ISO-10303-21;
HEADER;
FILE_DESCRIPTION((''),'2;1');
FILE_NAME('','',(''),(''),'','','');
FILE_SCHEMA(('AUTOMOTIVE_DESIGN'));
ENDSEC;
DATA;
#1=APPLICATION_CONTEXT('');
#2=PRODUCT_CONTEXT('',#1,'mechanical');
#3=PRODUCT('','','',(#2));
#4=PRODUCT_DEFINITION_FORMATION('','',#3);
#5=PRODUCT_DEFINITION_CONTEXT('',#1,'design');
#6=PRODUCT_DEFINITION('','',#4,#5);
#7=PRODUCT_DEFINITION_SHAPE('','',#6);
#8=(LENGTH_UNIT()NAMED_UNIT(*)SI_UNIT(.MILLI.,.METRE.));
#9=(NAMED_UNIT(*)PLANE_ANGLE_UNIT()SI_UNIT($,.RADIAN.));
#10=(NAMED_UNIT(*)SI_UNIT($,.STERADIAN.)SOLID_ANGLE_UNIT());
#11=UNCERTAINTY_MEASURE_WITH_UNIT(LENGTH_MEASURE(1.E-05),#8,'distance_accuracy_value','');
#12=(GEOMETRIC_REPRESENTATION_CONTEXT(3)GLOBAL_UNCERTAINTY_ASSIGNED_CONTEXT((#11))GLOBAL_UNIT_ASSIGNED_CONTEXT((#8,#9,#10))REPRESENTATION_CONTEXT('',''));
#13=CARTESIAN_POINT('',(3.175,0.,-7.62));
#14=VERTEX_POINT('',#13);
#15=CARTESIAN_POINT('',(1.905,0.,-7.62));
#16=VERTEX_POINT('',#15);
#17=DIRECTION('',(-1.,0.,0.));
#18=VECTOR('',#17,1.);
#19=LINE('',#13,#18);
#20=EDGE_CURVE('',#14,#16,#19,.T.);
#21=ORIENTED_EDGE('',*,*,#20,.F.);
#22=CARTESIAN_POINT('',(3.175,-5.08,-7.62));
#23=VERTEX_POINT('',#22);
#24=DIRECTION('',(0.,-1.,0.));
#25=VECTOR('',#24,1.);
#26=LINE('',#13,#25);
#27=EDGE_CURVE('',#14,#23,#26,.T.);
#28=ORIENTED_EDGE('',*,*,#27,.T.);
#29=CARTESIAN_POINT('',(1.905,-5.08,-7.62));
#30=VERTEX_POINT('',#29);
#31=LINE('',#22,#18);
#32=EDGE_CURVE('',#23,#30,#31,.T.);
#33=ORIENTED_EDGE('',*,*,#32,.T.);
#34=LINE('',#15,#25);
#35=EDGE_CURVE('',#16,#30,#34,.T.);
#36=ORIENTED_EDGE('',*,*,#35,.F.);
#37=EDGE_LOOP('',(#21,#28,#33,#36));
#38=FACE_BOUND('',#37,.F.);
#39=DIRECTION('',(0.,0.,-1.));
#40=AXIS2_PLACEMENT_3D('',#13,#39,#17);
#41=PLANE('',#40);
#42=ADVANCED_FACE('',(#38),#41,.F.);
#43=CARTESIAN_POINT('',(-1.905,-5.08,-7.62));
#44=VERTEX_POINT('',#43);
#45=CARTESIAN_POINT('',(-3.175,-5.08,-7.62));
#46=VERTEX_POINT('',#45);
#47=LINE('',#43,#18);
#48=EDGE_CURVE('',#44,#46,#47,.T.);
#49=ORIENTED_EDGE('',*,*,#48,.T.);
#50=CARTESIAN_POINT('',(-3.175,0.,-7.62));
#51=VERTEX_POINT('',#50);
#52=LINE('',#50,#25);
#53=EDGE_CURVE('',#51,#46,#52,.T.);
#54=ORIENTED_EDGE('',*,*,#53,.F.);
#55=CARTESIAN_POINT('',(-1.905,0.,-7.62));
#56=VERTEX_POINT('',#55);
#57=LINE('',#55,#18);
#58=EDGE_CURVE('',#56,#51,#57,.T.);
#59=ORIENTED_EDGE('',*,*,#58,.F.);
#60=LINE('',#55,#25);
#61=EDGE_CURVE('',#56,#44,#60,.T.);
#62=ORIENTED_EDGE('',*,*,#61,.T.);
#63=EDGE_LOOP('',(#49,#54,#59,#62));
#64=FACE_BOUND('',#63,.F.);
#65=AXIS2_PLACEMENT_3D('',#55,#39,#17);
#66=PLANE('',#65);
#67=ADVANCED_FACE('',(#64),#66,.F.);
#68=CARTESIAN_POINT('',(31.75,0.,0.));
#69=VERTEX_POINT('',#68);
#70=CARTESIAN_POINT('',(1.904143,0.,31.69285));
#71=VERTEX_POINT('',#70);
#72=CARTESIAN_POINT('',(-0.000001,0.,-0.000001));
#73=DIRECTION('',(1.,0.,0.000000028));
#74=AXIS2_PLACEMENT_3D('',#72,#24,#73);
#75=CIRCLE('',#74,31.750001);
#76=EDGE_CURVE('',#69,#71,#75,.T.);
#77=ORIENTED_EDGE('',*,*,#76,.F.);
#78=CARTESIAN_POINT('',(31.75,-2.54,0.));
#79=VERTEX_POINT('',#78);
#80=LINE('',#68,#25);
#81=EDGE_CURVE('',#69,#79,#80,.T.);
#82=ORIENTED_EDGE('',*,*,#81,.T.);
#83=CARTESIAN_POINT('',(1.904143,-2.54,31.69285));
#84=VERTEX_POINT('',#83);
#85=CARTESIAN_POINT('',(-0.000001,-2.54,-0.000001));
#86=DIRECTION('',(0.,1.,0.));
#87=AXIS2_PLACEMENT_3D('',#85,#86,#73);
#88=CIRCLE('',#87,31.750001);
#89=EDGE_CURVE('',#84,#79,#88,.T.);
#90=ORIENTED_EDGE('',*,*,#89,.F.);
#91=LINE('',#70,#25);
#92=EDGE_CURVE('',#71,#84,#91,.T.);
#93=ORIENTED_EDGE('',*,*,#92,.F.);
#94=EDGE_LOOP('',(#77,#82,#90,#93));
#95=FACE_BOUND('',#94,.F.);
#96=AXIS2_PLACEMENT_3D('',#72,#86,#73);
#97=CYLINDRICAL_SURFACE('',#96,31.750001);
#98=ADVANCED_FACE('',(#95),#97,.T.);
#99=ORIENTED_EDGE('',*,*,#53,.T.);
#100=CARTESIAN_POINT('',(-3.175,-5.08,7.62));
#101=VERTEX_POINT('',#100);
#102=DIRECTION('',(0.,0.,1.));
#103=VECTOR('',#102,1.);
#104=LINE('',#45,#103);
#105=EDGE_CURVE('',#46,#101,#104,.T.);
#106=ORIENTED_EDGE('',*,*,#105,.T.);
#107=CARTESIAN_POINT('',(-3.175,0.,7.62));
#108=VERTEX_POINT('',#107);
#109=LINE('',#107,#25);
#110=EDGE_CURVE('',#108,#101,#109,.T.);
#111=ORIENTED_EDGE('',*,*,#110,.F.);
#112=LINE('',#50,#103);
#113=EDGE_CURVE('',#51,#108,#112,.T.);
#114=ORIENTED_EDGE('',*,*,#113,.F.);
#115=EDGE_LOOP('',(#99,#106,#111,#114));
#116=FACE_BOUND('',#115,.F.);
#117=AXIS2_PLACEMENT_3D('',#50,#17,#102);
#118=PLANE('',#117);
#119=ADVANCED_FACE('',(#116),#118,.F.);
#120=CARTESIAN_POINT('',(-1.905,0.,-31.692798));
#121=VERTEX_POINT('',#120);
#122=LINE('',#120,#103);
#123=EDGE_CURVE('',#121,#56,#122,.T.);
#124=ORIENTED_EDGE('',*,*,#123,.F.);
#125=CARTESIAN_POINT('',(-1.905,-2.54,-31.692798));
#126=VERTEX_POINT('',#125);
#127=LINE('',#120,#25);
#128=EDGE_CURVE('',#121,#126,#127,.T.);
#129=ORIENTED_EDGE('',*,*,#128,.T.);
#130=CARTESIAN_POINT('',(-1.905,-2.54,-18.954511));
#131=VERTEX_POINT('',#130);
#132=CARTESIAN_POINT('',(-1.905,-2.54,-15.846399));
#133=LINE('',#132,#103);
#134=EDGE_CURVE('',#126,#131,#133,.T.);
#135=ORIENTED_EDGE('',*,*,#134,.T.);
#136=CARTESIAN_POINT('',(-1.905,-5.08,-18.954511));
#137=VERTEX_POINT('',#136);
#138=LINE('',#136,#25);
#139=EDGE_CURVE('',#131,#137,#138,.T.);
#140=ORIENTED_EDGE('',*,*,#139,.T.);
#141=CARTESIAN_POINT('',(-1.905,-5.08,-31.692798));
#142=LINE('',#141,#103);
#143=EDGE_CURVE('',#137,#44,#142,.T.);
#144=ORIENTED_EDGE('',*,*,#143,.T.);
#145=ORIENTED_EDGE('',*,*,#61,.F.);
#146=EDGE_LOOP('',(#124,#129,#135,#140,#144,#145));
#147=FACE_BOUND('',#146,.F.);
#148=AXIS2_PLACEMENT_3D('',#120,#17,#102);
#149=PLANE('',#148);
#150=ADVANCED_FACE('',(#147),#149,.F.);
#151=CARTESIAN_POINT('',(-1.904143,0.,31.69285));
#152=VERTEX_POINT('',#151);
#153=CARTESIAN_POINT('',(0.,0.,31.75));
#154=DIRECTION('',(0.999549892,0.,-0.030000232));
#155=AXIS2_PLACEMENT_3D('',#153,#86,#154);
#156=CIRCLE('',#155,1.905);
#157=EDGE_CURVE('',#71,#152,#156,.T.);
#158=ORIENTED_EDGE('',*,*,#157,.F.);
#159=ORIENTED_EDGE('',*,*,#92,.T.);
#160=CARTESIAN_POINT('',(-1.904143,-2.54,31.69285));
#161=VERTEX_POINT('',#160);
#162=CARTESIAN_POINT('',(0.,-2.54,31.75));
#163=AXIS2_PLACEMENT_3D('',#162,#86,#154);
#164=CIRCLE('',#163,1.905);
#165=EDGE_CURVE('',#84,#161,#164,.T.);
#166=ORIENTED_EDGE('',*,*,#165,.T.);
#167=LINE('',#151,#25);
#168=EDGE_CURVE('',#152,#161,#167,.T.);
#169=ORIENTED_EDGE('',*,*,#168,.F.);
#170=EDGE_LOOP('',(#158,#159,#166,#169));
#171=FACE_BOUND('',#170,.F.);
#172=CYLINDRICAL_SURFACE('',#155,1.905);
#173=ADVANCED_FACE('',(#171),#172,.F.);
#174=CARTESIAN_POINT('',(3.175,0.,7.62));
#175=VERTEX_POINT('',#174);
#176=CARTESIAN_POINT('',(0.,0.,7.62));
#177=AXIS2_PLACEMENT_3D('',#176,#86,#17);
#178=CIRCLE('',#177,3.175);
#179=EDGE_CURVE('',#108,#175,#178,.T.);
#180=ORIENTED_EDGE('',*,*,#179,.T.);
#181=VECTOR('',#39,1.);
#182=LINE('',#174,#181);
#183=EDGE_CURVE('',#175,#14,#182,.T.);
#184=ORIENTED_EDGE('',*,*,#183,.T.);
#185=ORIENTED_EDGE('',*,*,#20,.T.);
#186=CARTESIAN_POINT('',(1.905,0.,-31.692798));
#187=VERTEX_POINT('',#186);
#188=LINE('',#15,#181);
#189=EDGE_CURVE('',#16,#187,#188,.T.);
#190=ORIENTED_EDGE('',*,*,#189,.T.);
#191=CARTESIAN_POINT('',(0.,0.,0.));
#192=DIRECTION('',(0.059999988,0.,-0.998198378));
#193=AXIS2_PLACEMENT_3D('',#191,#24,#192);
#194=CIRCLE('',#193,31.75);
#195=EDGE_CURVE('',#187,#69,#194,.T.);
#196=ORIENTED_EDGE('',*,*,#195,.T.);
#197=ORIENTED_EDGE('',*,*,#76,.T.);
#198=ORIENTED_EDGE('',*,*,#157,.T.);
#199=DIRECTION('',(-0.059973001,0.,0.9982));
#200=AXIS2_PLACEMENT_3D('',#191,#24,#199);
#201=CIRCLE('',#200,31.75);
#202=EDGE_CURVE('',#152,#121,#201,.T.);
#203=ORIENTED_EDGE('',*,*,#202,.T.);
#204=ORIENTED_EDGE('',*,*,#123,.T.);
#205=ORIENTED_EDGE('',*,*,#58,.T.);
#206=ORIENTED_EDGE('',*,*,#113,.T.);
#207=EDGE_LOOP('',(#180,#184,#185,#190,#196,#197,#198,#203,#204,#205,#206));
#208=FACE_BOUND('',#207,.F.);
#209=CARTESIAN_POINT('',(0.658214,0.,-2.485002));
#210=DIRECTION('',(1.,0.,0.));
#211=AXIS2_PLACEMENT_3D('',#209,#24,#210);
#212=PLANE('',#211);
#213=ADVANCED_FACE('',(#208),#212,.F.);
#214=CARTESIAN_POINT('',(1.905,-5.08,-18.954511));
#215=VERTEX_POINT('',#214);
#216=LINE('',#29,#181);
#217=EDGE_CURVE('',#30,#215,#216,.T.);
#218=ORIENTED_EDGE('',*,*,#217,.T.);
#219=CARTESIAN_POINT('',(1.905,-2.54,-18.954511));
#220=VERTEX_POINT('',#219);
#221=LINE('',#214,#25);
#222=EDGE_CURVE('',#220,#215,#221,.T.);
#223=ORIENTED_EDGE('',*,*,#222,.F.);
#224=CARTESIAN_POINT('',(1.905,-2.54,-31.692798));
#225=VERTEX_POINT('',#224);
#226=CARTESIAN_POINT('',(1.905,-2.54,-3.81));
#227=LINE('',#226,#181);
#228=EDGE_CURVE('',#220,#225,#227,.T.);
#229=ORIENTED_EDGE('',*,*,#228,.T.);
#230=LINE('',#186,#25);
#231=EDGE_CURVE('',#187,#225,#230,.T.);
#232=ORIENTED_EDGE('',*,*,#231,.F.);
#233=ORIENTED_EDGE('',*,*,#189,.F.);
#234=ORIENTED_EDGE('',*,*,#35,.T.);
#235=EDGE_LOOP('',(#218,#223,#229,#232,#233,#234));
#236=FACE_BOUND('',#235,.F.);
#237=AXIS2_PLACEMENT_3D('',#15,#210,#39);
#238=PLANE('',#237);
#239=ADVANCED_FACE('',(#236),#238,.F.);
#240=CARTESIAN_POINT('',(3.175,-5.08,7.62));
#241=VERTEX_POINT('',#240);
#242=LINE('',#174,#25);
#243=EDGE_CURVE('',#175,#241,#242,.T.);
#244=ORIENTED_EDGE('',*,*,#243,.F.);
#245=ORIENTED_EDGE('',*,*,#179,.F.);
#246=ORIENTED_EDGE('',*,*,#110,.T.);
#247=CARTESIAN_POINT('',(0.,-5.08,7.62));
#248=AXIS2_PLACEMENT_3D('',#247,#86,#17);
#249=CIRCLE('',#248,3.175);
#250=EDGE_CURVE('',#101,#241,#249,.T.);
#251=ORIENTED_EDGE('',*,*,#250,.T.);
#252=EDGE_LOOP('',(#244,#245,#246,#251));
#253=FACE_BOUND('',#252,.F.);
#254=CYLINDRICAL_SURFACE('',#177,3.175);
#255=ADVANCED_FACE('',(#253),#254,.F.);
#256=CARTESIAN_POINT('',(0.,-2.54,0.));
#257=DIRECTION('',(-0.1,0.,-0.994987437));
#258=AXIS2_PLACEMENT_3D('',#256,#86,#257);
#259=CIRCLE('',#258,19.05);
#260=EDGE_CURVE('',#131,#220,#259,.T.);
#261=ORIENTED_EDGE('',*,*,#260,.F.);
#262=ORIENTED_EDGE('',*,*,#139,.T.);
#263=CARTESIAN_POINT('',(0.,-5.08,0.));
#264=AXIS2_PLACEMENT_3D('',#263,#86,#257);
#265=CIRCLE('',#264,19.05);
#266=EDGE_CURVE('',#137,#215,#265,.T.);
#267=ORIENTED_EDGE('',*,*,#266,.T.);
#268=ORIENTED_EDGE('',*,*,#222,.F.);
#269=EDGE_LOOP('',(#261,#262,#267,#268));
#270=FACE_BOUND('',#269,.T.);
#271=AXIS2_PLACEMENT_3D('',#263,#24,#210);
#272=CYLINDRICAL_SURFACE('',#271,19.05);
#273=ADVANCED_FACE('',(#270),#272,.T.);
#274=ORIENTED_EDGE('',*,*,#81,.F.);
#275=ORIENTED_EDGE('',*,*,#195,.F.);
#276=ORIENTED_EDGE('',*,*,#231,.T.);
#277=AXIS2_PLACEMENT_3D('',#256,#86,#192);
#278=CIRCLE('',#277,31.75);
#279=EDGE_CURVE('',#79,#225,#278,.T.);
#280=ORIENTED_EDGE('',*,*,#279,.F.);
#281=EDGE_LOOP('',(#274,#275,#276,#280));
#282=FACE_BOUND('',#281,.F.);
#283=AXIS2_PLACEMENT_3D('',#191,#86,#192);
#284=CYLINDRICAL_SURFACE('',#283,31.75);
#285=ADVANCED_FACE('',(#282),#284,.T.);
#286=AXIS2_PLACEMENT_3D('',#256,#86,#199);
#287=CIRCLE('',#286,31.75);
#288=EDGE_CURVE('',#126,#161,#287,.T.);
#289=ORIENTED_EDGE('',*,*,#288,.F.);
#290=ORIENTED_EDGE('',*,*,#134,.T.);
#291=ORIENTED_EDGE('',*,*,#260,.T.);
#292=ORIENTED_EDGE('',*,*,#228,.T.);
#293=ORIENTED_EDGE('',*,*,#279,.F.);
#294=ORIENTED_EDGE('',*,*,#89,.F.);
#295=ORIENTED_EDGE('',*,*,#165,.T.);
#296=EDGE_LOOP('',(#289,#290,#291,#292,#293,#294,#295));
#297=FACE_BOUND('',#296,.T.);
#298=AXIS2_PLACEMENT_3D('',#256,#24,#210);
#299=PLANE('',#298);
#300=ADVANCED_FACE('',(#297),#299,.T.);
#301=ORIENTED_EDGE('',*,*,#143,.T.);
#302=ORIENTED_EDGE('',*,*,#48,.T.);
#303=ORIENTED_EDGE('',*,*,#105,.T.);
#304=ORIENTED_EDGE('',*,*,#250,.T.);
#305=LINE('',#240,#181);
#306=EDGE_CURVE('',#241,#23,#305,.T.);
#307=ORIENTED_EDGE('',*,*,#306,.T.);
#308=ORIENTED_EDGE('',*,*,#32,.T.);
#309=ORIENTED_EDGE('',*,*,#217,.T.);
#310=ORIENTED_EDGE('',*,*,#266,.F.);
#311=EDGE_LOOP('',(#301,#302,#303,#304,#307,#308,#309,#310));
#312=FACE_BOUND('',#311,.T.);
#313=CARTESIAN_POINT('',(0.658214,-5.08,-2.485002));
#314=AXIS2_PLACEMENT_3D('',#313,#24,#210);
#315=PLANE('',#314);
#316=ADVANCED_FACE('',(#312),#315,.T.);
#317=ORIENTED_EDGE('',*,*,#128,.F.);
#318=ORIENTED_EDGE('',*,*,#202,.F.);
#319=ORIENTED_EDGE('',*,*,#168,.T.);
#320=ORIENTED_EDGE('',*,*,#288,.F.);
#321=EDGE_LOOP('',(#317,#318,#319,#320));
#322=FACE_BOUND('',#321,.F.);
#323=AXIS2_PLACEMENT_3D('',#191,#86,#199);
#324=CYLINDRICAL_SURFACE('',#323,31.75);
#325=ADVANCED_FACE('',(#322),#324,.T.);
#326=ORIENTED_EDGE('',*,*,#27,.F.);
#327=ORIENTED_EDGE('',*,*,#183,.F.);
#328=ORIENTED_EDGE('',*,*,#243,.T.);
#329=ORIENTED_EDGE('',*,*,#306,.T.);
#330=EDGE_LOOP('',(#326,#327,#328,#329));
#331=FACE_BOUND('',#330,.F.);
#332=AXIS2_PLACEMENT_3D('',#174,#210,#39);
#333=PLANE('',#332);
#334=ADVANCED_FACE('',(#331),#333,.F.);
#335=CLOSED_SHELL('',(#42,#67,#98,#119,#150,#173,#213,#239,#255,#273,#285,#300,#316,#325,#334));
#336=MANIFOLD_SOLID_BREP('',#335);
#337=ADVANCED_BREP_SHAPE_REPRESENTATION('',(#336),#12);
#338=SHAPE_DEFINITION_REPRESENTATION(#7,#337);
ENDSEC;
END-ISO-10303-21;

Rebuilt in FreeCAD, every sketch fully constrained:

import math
import FreeCAD as App
import Part
import Sketcher
from FreeCAD import Vector
Q = App.Units.Quantity

doc = App.newDocument("Part")
params = doc.addObject("Spreadsheet::Sheet", "Params")
for row, (alias, value) in enumerate([
    ("sketch1_radius", "1.25 in"),
    ("sketch1_height", "0.6 in"),
    ("sketch1_radius2", "0.075 in"),
    ("sketch1_radius3", "0.125 in"),
    ("sketch1_width", "0.05 in"),
    ("pad1_length", "0.2 in"),
    ("sketch2_diameter", "6 in"),
    ("sketch2_diameter2", "1.5 in"),
    ("pocket1_length", "0.1 in"),
], start=1):
    params.set(f"A{row}", alias)
    params.set(f"B{row}", "=" + value)
    params.setAlias(f"B{row}", alias)

body = doc.addObject("PartDesign::Body", "Body")

# Sketch on XZ plane
sketch1 = body.newObject("Sketcher::SketchObject", "Sketch")
sketch1.AttachmentSupport = (doc.getObject("XZ_Plane"), [""])
sketch1.MapMode = "FlatFace"
sketch1.addGeometry([
    Part.ArcOfCircle(Part.Circle(Vector(0, 0, 0), Vector(0, 0, 1), 31.7), math.radians(-87), math.radians(0)),  # 0
    Part.ArcOfCircle(Part.Circle(Vector(0, 0, 0), Vector(0, 0, 1), 31.8), math.radians(0), math.radians(87)),  # 1
    Part.ArcOfCircle(Part.Circle(Vector(0, 31.8, 0), Vector(0, 0, 1), 1.9), math.radians(-178), math.radians(-2)),  # 2
    Part.ArcOfCircle(Part.Circle(Vector(0, 0, 0), Vector(0, 0, 1), 31.7), math.radians(93), math.radians(267)),  # 3
    Part.LineSegment(Vector(-1.9, -31.7, 0), Vector(-1.9, -7.6, 0)),  # 4
    Part.LineSegment(Vector(-1.9, -7.6, 0), Vector(-3.2, -7.6, 0)),  # 5
    Part.LineSegment(Vector(-3.2, -7.6, 0), Vector(-3.2, 7.6, 0)),  # 6
    Part.ArcOfCircle(Part.Circle(Vector(0, 7.6, 0), Vector(0, 0, 1), 3.2), math.radians(0), math.radians(180)),  # 7
    Part.LineSegment(Vector(3.2, 7.6, 0), Vector(3.2, -7.6, 0)),  # 8
    Part.LineSegment(Vector(3.2, -7.6, 0), Vector(1.9, -7.6, 0)),  # 9
    Part.LineSegment(Vector(1.9, -7.6, 0), Vector(1.9, -31.7, 0)),  # 10
], False)
sketch1.addConstraint([
    Sketcher.Constraint("Tangent", 0, 2, 1, 1),
    Sketcher.Constraint("Coincident", 1, 2, 2, 2),
    Sketcher.Constraint("Coincident", 2, 1, 3, 1),
    Sketcher.Constraint("Coincident", 3, 2, 4, 1),
    Sketcher.Constraint("Coincident", 4, 2, 5, 1),
    Sketcher.Constraint("Coincident", 5, 2, 6, 1),
    Sketcher.Constraint("Tangent", 6, 2, 7, 2),
    Sketcher.Constraint("Tangent", 7, 1, 8, 1),
    Sketcher.Constraint("Coincident", 8, 2, 9, 1),
    Sketcher.Constraint("Coincident", 9, 2, 10, 1),
    Sketcher.Constraint("Coincident", 10, 2, 0, 1),
    Sketcher.Constraint("Vertical", 4),
    Sketcher.Constraint("Horizontal", 5),
    Sketcher.Constraint("Vertical", 6),
    Sketcher.Constraint("Vertical", 8),
    Sketcher.Constraint("Horizontal", 9),
    Sketcher.Constraint("Vertical", 10),
    Sketcher.Constraint("Coincident", 0, 3, -1, 1),
    Sketcher.Constraint("Coincident", 3, 3, -1, 1),
    Sketcher.Constraint("Equal", 0, 1),
    Sketcher.Constraint("Equal", 1, 3),
    Sketcher.Constraint("Symmetric", 5, 2, 7, 1, -1, 1),
    Sketcher.Constraint("Symmetric", 4, 2, 9, 2, -2),
    Sketcher.Constraint("PointOnObject", 2, 3, -2),
    Sketcher.Constraint("PointOnObject", 0, 2, -1),
    Sketcher.Constraint("Radius", 0, Q("1.25 in")),
    Sketcher.Constraint("DistanceY", 6, 1, 6, 2, Q("0.6 in")),
    Sketcher.Constraint("Radius", 2, Q("0.075 in")),
    Sketcher.Constraint("Radius", 7, Q("0.125 in")),
    Sketcher.Constraint("DistanceX", 5, 2, 5, 1, Q("0.05 in")),
    Sketcher.Constraint("DistanceY", -1, 1, 2, 3, Q("1.25 in")),
])
sketch1.setExpression("Constraints[25]", "Params.sketch1_radius")
sketch1.setExpression("Constraints[26]", "Params.sketch1_height")
sketch1.setExpression("Constraints[27]", "Params.sketch1_radius2")
sketch1.setExpression("Constraints[28]", "Params.sketch1_radius3")
sketch1.setExpression("Constraints[29]", "Params.sketch1_width")
pad1 = body.newObject("PartDesign::Pad", "Pad")
pad1.Profile = sketch1
pad1.setExpression("Length", "Params.pad1_length")

# Sketch on XZ plane
sketch2 = body.newObject("Sketcher::SketchObject", "Sketch001")
sketch2.AttachmentSupport = (doc.getObject("XZ_Plane"), [""])
sketch2.MapMode = "FlatFace"
sketch2.AttachmentOffset = App.Placement(Vector(0, 0, 0.2 * 25.4), App.Rotation())
sketch2.addGeometry([
    Part.Circle(Vector(0, 0, 0), Vector(0, 0, 1), 76),
    Part.Circle(Vector(0, 0, 0), Vector(0, 0, 1), 19),
], False)
sketch2.addConstraint([
    Sketcher.Constraint("Coincident", 0, 3, -1, 1),
    Sketcher.Constraint("Coincident", 1, 3, -1, 1),
    Sketcher.Constraint("Diameter", 0, Q("6 in")),
    Sketcher.Constraint("Diameter", 1, Q("1.5 in")),
])
sketch2.setExpression("Constraints[2]", "Params.sketch2_diameter")
sketch2.setExpression("Constraints[3]", "Params.sketch2_diameter2")
pocket1 = body.newObject("PartDesign::Pocket", "Pocket")
pocket1.Profile = sketch2
pocket1.setExpression("Length", "Params.pocket1_length")

doc.recompute()
